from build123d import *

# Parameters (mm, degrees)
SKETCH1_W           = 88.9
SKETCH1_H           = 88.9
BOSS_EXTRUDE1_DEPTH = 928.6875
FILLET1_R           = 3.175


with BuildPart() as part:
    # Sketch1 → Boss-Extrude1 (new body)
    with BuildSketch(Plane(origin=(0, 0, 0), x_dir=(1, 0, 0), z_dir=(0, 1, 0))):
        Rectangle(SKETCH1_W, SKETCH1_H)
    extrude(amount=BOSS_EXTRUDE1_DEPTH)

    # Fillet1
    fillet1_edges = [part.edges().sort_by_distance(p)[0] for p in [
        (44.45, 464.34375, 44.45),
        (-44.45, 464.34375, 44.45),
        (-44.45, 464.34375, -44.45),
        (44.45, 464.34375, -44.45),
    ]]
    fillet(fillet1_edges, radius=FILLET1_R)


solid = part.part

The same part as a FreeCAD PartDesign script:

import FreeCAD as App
import Part
import Sketcher
from FreeCAD import Vector
Q = App.Units.Quantity


def edges_at(feature, points):
    """Names of the edges that pass closest to the given points."""
    edges = feature.Shape.Edges
    near = lambda p: min(range(len(edges)), key=lambda i: edges[i].distToShape(Part.Vertex(*p))[0])
    return sorted({f"Edge{near(p) + 1}" for p in points})

doc = App.newDocument("Part")
params = doc.addObject("Spreadsheet::Sheet", "Params")
for row, (alias, value) in enumerate([
    ("sketch1_width", "3.5 in"),
    ("pad1_length", "36.5625 in"),
    ("fillet_radius", "0.125 in"),
], start=1):
    params.set(f"A{row}", alias)
    params.set(f"B{row}", "=" + value)
    params.setAlias(f"B{row}", alias)

body = doc.addObject("PartDesign::Body", "Body")

# Sketch on XZ plane
sketch1 = body.newObject("Sketcher::SketchObject", "Sketch")
sketch1.AttachmentSupport = (doc.getObject("XZ_Plane"), [""])
sketch1.MapMode = "FlatFace"
sketch1.addGeometry(Part.LineSegment(Vector(-44, -44, 0), Vector(-44, 44, 0)), False)
sketch1.addGeometry(Part.LineSegment(Vector(-44, 44, 0), Vector(44, 44, 0)), False)
sketch1.addGeometry(Part.LineSegment(Vector(44, 44, 0), Vector(44, -44, 0)), False)
sketch1.addGeometry(Part.LineSegment(Vector(44, -44, 0), Vector(-44, -44, 0)), False)
sketch1.addConstraint(Sketcher.Constraint("Coincident", 0, 2, 1, 1))
sketch1.addConstraint(Sketcher.Constraint("Coincident", 1, 2, 2, 1))
sketch1.addConstraint(Sketcher.Constraint("Coincident", 2, 2, 3, 1))
sketch1.addConstraint(Sketcher.Constraint("Coincident", 3, 2, 0, 1))
sketch1.addConstraint(Sketcher.Constraint("Vertical", 0))
sketch1.addConstraint(Sketcher.Constraint("Horizontal", 1))
sketch1.addConstraint(Sketcher.Constraint("Vertical", 2))
sketch1.addConstraint(Sketcher.Constraint("Horizontal", 3))
sketch1.addConstraint(Sketcher.Constraint("Symmetric", 0, 2, 2, 2, -1, 1))
sketch1.addConstraint(Sketcher.Constraint("Equal", 3, 0))
sketch1.addConstraint(Sketcher.Constraint("DistanceX", 1, 1, 1, 2, Q("3.5 in")))
sketch1.setExpression("Constraints[10]", "Params.sketch1_width")
pad1 = body.newObject("PartDesign::Pad", "Pad")
pad1.Profile = sketch1
pad1.setExpression("Length", "Params.pad1_length")
pad1.Reversed = True
doc.recompute()

fillet = body.newObject("PartDesign::Fillet", "Fillet")
fillet.Base = (pad1, edges_at(pad1, [
    (44.45, 464.344, 44.45),
    (-44.45, 464.344, 44.45),
    (-44.45, 464.344, -44.45),
    (44.45, 464.344, -44.45),
]))
fillet.setExpression("Radius", "Params.fillet_radius")

doc.recompute()
